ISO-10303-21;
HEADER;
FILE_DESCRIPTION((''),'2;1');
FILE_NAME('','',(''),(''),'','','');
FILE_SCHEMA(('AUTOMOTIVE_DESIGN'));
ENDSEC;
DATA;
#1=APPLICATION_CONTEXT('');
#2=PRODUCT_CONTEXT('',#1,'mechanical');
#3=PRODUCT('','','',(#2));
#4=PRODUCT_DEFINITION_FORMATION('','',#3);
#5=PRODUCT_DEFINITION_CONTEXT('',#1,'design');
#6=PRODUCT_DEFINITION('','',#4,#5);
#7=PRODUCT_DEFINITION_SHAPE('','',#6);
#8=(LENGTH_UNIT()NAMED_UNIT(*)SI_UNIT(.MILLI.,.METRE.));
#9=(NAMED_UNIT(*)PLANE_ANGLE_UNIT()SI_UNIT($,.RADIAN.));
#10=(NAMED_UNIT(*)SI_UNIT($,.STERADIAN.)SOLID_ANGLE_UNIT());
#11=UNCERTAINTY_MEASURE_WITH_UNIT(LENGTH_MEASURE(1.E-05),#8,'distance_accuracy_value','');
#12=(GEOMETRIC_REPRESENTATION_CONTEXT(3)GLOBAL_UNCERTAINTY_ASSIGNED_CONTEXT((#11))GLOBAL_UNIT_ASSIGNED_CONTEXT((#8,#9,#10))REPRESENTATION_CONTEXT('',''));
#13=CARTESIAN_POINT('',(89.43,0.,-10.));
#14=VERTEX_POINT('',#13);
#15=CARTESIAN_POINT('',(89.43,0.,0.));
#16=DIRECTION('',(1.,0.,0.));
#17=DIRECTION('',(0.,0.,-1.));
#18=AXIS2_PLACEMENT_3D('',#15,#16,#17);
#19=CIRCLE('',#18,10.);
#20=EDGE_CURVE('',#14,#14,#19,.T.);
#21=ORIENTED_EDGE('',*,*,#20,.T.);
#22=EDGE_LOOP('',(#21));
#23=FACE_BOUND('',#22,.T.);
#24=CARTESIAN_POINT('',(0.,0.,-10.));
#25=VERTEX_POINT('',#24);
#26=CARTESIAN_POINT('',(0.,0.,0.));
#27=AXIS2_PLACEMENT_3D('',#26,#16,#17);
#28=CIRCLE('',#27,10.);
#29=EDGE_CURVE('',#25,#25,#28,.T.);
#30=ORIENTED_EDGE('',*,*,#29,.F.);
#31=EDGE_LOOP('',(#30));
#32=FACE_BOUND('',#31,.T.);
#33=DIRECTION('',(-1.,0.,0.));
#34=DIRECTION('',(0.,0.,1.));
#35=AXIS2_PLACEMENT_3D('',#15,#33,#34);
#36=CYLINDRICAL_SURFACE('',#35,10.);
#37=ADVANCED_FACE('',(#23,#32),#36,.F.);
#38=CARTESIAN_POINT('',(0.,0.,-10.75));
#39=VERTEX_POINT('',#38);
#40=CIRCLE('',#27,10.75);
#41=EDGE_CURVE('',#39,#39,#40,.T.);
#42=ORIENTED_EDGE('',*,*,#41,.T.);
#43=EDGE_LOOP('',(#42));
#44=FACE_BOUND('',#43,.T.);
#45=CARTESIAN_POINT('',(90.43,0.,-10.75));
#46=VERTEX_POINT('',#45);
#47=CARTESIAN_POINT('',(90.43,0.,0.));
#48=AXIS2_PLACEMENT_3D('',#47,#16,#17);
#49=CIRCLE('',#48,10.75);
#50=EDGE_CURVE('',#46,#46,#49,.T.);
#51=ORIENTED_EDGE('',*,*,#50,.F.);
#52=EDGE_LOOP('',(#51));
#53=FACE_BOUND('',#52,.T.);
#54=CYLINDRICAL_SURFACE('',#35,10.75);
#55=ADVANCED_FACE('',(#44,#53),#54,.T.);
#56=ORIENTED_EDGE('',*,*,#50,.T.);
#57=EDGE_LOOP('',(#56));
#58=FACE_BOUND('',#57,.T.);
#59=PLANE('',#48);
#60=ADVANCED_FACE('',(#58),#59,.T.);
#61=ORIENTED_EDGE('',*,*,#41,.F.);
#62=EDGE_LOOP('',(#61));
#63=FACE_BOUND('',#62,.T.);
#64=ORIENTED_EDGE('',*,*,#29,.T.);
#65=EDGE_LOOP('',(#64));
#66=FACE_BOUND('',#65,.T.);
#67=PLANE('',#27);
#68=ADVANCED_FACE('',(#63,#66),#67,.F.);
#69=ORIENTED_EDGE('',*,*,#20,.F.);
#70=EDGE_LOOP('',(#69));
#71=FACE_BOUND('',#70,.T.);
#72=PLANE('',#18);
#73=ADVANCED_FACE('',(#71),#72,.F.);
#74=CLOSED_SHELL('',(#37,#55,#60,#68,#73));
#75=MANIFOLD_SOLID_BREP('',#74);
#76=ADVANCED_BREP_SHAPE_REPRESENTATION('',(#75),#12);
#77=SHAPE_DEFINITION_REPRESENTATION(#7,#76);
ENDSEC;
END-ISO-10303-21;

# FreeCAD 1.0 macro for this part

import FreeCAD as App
import Part
import Sketcher
from FreeCAD import Vector

doc = App.newDocument("Part")
body = doc.addObject("PartDesign::Body", "Body")

# Sketch on YZ plane
sketch1 = doc.addObject("Sketcher::SketchObject", "Sketch")
body.addObject(sketch1)
sketch1.AttachmentSupport = (doc.YZ_Plane, [""])
sketch1.MapMode = "FlatFace"
sketch1.addGeometry([
    Part.Circle(Vector(0, 0, 0), Vector(0, 0, 1), 11),
    Part.Circle(Vector(0, 0, 0), Vector(0, 0, 1), 10),
], False)
sketch1.addConstraint([
    Sketcher.Constraint("Coincident", 0, 3, -1, 1),
    Sketcher.Constraint("Coincident", 1, 3, -1, 1),
    Sketcher.Constraint("Diameter", 1, 20.0),
    Sketcher.Constraint("Diameter", 0, 21.5),
])
pad1 = doc.addObject("PartDesign::Pad", "Pad")
body.addObject(pad1)
pad1.Profile = sketch1
pad1.Length = 89.43

# Sketch on YZ plane
sketch2 = doc.addObject("Sketcher::SketchObject", "Sketch001")
body.addObject(sketch2)
sketch2.AttachmentSupport = (doc.YZ_Plane, [""])
sketch2.MapMode = "FlatFace"
sketch2.AttachmentOffset = App.Placement(Vector(0, 0, 89.43), App.Rotation())
sketch2.addGeometry(Part.Circle(Vector(0, 0, 0), Vector(0, 0, 1), 11), False)
sketch2.addConstraint([
    Sketcher.Constraint("Coincident", 0, 3, -1, 1),
    Sketcher.Constraint("Diameter", 0, 21.5),
])
pad2 = doc.addObject("PartDesign::Pad", "Pad001")
body.addObject(pad2)
pad2.Profile = sketch2
pad2.Length = 1

doc.recompute()
